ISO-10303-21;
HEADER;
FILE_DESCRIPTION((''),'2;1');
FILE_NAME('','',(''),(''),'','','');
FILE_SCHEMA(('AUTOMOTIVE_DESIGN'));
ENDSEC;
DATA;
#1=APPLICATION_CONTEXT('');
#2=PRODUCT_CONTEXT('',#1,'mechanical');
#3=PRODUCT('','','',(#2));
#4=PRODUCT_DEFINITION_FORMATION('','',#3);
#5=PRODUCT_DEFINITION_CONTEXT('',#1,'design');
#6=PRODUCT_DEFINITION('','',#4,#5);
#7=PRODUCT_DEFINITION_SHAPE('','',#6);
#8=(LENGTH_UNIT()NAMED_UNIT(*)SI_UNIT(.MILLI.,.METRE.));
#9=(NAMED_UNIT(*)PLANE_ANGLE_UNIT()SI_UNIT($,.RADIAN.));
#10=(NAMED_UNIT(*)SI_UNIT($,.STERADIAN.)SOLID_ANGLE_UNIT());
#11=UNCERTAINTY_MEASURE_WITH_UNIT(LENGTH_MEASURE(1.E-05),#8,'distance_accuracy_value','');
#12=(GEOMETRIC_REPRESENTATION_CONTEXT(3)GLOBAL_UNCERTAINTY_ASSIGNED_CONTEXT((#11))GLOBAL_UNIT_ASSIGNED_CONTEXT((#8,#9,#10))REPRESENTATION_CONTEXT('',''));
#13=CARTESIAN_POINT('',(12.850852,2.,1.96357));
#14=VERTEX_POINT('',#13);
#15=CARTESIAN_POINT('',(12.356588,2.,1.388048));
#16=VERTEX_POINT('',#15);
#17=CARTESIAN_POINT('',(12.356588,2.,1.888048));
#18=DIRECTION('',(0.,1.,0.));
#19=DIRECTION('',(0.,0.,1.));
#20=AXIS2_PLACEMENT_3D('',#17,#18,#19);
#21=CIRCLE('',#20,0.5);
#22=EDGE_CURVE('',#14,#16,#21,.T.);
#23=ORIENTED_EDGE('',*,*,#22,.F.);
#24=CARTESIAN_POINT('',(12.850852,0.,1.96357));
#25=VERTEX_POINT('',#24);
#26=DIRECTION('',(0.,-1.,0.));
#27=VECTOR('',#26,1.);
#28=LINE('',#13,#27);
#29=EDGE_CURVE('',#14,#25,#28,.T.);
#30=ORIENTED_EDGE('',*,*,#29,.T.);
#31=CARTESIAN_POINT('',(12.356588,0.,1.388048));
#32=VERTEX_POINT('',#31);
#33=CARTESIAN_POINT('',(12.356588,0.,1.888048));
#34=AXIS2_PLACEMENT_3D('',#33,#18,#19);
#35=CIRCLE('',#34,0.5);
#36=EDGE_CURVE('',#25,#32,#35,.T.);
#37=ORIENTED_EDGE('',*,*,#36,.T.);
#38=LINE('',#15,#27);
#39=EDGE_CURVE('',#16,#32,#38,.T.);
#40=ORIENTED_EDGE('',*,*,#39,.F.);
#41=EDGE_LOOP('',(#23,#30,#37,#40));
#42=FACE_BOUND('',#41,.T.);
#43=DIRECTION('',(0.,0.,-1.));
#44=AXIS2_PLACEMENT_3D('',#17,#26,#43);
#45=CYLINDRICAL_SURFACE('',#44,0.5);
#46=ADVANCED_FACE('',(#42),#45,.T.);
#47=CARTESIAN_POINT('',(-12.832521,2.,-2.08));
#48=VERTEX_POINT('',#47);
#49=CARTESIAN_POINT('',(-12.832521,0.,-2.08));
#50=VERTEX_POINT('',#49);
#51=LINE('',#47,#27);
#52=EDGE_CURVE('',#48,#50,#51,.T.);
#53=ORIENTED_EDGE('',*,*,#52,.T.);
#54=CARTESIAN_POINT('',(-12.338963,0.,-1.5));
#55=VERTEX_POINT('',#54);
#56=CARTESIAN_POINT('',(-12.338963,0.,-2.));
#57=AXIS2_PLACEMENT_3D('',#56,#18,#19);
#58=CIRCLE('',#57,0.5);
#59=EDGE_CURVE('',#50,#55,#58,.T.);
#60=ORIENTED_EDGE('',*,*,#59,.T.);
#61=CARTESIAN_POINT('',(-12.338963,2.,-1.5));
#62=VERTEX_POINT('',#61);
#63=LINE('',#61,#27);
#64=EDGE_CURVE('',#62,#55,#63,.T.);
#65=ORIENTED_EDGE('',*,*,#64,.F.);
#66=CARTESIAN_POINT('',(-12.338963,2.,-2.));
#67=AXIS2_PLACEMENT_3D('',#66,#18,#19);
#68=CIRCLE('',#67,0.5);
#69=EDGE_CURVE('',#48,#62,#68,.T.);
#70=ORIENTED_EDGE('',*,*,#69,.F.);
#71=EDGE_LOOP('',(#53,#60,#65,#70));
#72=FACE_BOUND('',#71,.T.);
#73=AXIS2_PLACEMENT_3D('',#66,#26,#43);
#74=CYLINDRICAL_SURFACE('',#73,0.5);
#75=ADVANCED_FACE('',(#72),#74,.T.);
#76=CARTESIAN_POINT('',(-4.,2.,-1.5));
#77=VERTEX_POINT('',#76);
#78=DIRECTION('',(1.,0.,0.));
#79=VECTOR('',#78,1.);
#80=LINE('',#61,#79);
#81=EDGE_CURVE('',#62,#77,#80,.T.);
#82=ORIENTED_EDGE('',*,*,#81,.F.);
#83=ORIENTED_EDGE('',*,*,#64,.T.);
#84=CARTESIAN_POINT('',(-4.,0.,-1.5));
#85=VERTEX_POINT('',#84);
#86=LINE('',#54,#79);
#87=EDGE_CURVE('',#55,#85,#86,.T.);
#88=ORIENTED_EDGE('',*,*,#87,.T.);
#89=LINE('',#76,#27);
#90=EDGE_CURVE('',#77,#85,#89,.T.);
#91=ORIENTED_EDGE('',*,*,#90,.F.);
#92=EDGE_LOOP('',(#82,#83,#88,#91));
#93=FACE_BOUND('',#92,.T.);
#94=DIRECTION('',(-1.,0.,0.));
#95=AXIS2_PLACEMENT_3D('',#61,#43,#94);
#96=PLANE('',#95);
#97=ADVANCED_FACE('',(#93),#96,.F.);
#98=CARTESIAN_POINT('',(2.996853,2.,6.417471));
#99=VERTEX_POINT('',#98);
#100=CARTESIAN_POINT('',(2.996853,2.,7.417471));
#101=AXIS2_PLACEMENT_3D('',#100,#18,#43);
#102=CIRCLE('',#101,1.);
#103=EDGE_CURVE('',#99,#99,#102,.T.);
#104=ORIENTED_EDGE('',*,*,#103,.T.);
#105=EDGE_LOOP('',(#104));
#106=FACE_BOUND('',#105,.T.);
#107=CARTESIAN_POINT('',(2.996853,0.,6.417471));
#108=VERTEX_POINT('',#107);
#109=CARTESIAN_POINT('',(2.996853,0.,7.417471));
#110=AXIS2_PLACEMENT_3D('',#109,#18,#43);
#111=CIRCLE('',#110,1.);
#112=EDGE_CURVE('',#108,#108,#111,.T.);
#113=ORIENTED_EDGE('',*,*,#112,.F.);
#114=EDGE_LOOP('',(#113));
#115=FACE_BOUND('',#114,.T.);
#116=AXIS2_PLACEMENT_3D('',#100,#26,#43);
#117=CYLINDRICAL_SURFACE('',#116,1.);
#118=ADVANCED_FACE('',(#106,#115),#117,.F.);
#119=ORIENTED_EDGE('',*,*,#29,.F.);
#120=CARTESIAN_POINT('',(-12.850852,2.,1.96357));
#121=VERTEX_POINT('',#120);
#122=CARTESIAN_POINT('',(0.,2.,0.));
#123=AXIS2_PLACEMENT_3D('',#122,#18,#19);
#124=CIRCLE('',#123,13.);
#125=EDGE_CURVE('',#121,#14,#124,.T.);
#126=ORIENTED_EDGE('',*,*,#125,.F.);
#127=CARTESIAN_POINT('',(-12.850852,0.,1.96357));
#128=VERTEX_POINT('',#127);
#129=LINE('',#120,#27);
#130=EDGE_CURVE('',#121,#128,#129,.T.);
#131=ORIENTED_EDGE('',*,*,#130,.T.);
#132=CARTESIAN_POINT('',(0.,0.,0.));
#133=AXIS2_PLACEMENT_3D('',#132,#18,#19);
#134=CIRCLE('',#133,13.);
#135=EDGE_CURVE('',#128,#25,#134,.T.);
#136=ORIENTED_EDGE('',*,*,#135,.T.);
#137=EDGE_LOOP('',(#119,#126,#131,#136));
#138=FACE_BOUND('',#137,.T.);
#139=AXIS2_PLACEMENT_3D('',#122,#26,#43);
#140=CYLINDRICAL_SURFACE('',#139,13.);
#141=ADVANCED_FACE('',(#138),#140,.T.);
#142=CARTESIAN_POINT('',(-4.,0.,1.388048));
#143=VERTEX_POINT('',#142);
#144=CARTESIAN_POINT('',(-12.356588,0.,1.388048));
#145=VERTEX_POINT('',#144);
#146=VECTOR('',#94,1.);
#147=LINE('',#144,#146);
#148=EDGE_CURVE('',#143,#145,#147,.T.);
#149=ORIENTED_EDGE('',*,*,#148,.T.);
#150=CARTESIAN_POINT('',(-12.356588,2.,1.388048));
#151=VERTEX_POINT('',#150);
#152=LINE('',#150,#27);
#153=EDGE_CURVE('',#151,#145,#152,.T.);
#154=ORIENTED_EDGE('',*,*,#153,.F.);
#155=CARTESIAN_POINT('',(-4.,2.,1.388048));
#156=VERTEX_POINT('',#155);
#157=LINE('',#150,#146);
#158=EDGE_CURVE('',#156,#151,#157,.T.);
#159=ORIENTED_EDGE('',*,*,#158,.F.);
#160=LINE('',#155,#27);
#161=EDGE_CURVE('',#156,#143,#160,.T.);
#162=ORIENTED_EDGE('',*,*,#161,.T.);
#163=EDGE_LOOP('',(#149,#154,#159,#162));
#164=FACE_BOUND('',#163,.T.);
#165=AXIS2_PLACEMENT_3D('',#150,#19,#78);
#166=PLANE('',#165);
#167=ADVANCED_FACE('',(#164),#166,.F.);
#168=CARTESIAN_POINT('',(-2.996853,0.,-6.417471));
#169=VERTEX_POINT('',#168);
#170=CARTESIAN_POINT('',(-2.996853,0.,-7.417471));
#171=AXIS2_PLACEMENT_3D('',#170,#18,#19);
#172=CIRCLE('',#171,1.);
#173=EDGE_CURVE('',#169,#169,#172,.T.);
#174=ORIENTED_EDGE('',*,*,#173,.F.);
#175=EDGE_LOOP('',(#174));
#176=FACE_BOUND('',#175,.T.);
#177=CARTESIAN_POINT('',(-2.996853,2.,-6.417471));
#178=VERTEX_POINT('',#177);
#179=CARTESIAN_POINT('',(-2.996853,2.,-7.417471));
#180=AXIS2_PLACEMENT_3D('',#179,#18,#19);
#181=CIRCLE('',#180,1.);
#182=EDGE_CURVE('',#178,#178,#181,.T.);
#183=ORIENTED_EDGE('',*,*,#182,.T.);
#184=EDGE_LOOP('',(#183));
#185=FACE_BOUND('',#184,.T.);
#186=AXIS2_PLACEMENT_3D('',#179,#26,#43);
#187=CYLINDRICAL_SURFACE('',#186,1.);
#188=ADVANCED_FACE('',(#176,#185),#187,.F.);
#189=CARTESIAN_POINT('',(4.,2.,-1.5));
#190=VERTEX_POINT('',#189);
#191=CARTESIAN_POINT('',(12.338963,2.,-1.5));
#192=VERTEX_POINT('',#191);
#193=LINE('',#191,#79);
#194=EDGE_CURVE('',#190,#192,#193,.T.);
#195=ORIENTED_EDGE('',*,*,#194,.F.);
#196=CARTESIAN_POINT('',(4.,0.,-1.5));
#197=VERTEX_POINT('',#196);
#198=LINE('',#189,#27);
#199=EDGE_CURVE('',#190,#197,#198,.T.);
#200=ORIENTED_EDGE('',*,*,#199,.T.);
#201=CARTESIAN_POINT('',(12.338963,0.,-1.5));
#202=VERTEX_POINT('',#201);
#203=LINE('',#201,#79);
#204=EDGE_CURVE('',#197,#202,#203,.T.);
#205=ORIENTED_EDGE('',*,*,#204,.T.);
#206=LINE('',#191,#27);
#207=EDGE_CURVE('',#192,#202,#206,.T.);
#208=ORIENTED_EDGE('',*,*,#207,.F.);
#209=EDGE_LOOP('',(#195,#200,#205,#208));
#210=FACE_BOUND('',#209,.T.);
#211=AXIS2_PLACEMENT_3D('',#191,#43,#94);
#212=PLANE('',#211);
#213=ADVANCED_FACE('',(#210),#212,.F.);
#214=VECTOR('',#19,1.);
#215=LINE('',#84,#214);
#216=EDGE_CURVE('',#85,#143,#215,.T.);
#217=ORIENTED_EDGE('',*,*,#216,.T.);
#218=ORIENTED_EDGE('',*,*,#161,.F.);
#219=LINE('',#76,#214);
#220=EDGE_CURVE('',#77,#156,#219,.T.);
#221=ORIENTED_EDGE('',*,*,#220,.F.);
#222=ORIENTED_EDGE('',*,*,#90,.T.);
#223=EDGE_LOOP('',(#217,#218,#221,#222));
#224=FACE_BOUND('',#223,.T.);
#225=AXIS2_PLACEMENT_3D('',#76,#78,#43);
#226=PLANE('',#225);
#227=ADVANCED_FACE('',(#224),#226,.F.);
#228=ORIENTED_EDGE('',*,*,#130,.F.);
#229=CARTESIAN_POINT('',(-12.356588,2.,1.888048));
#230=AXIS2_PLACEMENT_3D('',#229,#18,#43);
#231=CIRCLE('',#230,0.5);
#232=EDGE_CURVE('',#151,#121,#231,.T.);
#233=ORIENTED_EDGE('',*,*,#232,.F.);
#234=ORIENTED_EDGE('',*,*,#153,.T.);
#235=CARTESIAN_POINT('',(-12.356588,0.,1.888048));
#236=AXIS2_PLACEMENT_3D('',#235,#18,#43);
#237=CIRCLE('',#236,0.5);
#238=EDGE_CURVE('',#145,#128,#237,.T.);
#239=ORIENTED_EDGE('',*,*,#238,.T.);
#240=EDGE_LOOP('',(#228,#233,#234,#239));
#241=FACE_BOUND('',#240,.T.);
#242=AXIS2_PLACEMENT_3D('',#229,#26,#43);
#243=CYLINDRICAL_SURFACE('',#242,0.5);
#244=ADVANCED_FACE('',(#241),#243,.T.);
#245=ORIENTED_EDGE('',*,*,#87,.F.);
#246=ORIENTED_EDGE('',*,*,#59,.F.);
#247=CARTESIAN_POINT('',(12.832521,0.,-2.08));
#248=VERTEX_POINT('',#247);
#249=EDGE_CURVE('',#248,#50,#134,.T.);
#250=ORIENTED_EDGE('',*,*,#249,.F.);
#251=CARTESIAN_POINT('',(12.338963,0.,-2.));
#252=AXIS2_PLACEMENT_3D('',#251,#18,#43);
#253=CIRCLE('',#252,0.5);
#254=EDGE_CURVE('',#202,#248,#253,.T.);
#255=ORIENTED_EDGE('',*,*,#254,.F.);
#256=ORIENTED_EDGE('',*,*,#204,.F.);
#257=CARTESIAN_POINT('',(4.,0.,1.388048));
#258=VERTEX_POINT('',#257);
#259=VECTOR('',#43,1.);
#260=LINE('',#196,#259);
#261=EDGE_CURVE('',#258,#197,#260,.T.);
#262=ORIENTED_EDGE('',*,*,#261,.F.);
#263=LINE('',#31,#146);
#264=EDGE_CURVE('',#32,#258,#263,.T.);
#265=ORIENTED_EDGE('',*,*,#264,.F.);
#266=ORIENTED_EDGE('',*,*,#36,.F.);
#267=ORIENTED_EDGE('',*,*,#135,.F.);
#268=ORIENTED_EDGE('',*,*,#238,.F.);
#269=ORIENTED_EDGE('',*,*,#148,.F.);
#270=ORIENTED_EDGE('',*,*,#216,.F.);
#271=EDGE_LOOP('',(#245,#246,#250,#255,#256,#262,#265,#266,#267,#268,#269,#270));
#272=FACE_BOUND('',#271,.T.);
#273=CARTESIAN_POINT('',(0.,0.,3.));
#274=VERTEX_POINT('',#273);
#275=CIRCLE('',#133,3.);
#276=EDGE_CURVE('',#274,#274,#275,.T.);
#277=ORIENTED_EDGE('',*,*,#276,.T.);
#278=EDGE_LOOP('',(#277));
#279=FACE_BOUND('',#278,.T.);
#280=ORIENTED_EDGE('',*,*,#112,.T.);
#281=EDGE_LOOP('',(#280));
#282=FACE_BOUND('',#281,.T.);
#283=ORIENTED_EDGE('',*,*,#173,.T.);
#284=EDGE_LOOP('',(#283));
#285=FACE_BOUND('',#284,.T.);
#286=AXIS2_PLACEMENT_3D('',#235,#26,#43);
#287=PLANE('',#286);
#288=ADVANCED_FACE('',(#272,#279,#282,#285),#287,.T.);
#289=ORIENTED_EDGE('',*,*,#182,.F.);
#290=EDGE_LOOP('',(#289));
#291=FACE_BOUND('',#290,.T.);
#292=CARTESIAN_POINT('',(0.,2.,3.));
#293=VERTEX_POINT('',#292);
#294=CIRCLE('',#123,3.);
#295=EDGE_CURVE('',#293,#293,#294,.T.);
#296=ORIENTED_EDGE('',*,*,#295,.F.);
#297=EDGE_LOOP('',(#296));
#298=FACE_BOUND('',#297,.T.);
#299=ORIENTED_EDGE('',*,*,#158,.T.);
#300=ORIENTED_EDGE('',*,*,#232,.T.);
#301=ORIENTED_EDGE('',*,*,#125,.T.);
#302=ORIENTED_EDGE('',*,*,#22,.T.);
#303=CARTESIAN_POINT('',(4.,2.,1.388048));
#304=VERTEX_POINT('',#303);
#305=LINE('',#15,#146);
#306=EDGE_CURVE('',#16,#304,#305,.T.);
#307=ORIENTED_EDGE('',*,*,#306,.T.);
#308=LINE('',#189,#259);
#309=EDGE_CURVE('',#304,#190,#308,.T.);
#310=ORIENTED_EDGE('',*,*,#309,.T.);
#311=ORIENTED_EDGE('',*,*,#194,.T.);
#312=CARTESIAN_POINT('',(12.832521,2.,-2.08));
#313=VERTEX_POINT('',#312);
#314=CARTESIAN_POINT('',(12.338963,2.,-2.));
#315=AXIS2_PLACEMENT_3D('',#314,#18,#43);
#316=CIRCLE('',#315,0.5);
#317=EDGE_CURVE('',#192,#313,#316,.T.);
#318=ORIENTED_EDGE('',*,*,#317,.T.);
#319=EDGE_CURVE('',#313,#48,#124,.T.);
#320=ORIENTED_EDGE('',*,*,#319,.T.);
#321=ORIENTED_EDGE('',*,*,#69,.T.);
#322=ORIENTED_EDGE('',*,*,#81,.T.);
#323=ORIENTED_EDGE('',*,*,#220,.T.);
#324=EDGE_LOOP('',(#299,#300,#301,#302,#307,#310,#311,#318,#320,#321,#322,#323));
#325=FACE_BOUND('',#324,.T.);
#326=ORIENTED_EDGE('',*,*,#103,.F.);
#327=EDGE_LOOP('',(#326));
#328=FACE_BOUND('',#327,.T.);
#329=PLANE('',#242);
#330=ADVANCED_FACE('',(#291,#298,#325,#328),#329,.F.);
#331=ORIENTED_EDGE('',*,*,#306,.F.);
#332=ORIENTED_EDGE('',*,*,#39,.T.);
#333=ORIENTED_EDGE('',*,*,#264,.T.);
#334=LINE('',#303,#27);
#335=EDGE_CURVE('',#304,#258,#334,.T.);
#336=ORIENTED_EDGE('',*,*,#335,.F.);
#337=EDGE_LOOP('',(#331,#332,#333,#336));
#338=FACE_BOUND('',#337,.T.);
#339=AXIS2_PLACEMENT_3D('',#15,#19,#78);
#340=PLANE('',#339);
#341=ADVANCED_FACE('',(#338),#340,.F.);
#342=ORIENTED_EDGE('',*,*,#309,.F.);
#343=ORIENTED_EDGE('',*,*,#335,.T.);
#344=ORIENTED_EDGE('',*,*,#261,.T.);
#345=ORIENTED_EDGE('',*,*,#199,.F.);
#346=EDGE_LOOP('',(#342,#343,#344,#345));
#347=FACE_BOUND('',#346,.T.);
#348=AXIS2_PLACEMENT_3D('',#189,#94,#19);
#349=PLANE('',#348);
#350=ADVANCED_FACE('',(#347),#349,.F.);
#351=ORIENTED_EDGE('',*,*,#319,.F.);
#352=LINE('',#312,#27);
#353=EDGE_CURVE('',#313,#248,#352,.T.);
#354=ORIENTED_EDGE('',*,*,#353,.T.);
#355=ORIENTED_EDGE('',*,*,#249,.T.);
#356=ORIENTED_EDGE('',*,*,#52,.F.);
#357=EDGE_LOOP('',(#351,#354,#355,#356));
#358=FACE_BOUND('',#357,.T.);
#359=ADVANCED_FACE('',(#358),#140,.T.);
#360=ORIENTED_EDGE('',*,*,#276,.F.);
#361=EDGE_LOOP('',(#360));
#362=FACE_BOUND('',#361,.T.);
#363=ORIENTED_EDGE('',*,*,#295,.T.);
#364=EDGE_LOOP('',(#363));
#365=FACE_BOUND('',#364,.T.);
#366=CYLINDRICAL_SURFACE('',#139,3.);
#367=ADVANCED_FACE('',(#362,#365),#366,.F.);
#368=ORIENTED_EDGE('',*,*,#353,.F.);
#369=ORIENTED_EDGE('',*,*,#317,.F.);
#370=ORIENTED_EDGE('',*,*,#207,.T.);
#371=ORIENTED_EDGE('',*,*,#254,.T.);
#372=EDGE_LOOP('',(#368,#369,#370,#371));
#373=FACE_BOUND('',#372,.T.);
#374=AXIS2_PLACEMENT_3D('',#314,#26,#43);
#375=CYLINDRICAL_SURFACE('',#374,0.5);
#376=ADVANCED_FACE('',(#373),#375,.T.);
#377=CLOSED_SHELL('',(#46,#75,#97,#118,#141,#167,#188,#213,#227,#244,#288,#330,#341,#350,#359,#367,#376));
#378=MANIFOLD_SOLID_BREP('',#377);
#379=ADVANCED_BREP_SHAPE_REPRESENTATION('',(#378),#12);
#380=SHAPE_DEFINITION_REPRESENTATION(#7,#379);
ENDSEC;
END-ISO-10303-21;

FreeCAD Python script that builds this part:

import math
import FreeCAD as App
import Part
import Sketcher

doc = App.newDocument("Part")
body = doc.addObject("PartDesign::Body", "Body")

# Sketch on XZ plane
sketch1 = body.newObject("Sketcher::SketchObject", "Sketch")
sketch1.AttachmentSupport = (doc.getObject("XZ_Plane"), [""])
sketch1.MapMode = "FlatFace"
sketch1.addGeometry([
    Part.LineSegment(App.Vector(-12.338963, -1.5, 0), App.Vector(-4, -1.5, 0)),  # 0
    Part.LineSegment(App.Vector(-4, -1.5, 0), App.Vector(-4, 1.388048, 0)),  # 1
    Part.LineSegment(App.Vector(-4, 1.388048, 0), App.Vector(-12.356588, 1.388048, 0)),  # 2
    Part.ArcOfCircle(Part.Circle(App.Vector(-12.356588, 1.888048, 0), App.Vector(0, 0, 1), 0.5), math.radians(171.312577), math.radians(270)),  # 3
    Part.ArcOfCircle(Part.Circle(App.Vector(0, 0, 0), App.Vector(0, 0, 1), 13), math.radians(8.687423), math.radians(171.312577)),  # 4
    Part.ArcOfCircle(Part.Circle(App.Vector(12.356588, 1.888048, 0), App.Vector(0, 0, 1), 0.5), math.radians(-90), math.radians(8.687423)),  # 5
    Part.LineSegment(App.Vector(12.356588, 1.388048, 0), App.Vector(4, 1.388048, 0)),  # 6
    Part.LineSegment(App.Vector(4, 1.388048, 0), App.Vector(4, -1.5, 0)),  # 7
    Part.LineSegment(App.Vector(4, -1.5, 0), App.Vector(12.338963, -1.5, 0)),  # 8
    Part.ArcOfCircle(Part.Circle(App.Vector(12.338963, -2, 0), App.Vector(0, 0, 1), 0.5), math.radians(-9.206896), math.radians(90)),  # 9
    Part.ArcOfCircle(Part.Circle(App.Vector(0, 0, 0), App.Vector(0, 0, 1), 13), math.radians(-170.793104), math.radians(-9.206896)),  # 10
    Part.ArcOfCircle(Part.Circle(App.Vector(-12.338963, -2, 0), App.Vector(0, 0, 1), 0.5), math.radians(90), math.radians(189.206896)),  # 11
    Part.Circle(App.Vector(2.996853, 7.417471, 0), App.Vector(0, 0, 1), 1),  # 12
    Part.Circle(App.Vector(0, 0, 0), App.Vector(0, 0, 1), 3),  # 13
    Part.Circle(App.Vector(-2.996853, -7.417471, 0), App.Vector(0, 0, 1), 1),  # 14
], False)
sketch1.addConstraint([
    Sketcher.Constraint("Coincident", 0, 2, 1, 1),
    Sketcher.Constraint("Coincident", 1, 2, 2, 1),
    Sketcher.Constraint("Tangent", 2, 2, 3, 2),
    Sketcher.Constraint("Tangent", 3, 1, 4, 2),
    Sketcher.Constraint("Tangent", 4, 1, 5, 2),
    Sketcher.Constraint("Tangent", 5, 1, 6, 1),
    Sketcher.Constraint("Coincident", 6, 2, 7, 1),
    Sketcher.Constraint("Coincident", 7, 2, 8, 1),
    Sketcher.Constraint("Tangent", 8, 2, 9, 2),
    Sketcher.Constraint("Tangent", 9, 1, 10, 2),
    Sketcher.Constraint("Tangent", 10, 1, 11, 2),
    Sketcher.Constraint("Tangent", 11, 1, 0, 1),
    Sketcher.Constraint("Horizontal", 0),
    Sketcher.Constraint("Vertical", 1),
    Sketcher.Constraint("Horizontal", 2),
    Sketcher.Constraint("Horizontal", 6),
    Sketcher.Constraint("Vertical", 7),
    Sketcher.Constraint("Horizontal", 8),
    Sketcher.Constraint("Coincident", 4, 3, -1, 1),
    Sketcher.Constraint("Coincident", 10, 3, -1, 1),
    Sketcher.Constraint("Coincident", 13, 3, -1, 1),
    Sketcher.Constraint("Equal", 3, 5),
    Sketcher.Constraint("Equal", 5, 9),
    Sketcher.Constraint("Equal", 4, 10),
    Sketcher.Constraint("Equal", 9, 11),
    Sketcher.Constraint("Equal", 12, 14),
    Sketcher.Constraint("Symmetric", 12, 3, 14, 3, -1, 1),
    Sketcher.Constraint("Symmetric", 1, 2, 6, 2, -2),
    Sketcher.Constraint("Horizontal", 9, 3, 11, 3),
    Sketcher.Constraint("Diameter", 12, 2.0),
    Sketcher.Constraint("Diameter", 13, 6.0),
    Sketcher.Constraint("Radius", 4, 13.0),
    Sketcher.Constraint("Radius", 3, 0.5),
    Sketcher.Constraint("DistanceY", 9, 3, -1, 1, 2.0),
    Sketcher.Constraint("DistanceX", 0, 2, -1, 1, 4.0),
    Sketcher.Constraint("DistanceX", 12, 3, 4, 1, 9.853999),
    Sketcher.Constraint("DistanceX", 2, 2, 2, 1, 8.356588),
    Sketcher.Constraint("DistanceY", 4, 1, 12, 3, 5.453901),
])
pad1 = body.newObject("PartDesign::Pad", "Pad")
pad1.Profile = sketch1
pad1.Length = 2
pad1.Reversed = True

doc.recompute()
